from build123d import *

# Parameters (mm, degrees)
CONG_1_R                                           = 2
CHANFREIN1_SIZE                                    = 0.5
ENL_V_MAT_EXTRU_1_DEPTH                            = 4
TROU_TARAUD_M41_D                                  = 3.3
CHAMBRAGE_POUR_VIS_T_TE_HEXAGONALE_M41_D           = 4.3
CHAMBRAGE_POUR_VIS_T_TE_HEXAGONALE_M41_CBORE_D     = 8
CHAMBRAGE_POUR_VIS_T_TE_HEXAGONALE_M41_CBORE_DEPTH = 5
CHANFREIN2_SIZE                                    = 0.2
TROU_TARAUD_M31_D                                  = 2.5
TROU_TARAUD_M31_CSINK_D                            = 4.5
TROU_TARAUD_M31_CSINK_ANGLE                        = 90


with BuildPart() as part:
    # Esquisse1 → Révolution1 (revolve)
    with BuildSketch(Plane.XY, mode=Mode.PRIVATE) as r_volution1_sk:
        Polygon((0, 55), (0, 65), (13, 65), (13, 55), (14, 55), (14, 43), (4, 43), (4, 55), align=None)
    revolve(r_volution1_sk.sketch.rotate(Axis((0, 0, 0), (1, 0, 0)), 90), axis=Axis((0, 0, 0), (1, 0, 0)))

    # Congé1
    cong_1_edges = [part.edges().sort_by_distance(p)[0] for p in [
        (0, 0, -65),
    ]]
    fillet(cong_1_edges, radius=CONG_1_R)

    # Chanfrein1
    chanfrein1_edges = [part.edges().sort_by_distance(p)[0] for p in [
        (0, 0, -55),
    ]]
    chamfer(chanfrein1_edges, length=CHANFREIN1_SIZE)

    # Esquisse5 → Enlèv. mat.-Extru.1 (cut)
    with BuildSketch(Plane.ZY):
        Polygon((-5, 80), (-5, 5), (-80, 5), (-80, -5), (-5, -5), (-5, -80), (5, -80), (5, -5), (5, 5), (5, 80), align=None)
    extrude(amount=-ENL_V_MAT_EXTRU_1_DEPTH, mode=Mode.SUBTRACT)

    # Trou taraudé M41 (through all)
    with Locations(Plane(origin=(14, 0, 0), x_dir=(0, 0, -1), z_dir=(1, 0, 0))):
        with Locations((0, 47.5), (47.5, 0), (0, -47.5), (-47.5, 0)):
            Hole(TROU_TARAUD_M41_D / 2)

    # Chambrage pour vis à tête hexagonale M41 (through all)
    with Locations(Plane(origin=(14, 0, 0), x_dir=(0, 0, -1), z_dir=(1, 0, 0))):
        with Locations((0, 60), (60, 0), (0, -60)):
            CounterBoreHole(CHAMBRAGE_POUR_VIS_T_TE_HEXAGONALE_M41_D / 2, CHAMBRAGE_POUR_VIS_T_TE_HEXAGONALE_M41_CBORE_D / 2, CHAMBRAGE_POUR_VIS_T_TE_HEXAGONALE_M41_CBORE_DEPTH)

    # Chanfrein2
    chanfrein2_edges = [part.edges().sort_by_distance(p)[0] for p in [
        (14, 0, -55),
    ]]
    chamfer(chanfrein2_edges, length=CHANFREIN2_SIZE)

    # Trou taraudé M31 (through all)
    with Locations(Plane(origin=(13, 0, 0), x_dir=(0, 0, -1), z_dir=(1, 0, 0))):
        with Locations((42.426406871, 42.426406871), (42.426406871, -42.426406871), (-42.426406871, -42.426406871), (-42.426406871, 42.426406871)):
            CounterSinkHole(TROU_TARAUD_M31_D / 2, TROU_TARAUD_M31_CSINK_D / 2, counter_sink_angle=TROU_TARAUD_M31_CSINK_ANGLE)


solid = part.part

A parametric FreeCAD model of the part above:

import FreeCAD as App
import Part
import Sketcher

V = App.Vector


def edges_at(feature, points):
    """Names of the edges that pass closest to the given points."""
    edges = feature.Shape.Edges
    near = lambda p: min(range(len(edges)), key=lambda i: edges[i].distToShape(Part.Vertex(*p))[0])
    return sorted({f"Edge{near(p) + 1}" for p in points})


def add_polygon(sketch, points):
    """Adds a closed chain of lines whose ends are joined by coincident constraints."""
    first, n = sketch.GeometryCount, len(points)
    for a, b in zip(points, points[1:] + points[:1]):
        sketch.addGeometry(Part.LineSegment(App.Vector(*a, 0), App.Vector(*b, 0)), False)
    for i in range(n):
        sketch.addConstraint(Sketcher.Constraint("Coincident", first + i, 2, first + (i + 1) % n, 1))

doc = App.newDocument("Part")
body = doc.addObject("PartDesign::Body", "Body")

# Sketch on XY plane
sketch1 = doc.addObject("Sketcher::SketchObject", "Sketch")
body.addObject(sketch1)
sketch1.AttachmentSupport = (doc.XY_Plane, [""])
sketch1.MapMode = "FlatFace"
add_polygon(sketch1, [(0, 65), (0, 55), (4, 55), (4, 43), (14, 43), (14, 55), (13, 55), (13, 65)])  # lines 0-7
sketch1.addConstraint([
    Sketcher.Constraint("Vertical", 0),
    Sketcher.Constraint("Horizontal", 1),
    Sketcher.Constraint("Vertical", 2),
    Sketcher.Constraint("Horizontal", 3),
    Sketcher.Constraint("Vertical", 4),
    Sketcher.Constraint("Horizontal", 5),
    Sketcher.Constraint("Vertical", 6),
    Sketcher.Constraint("Horizontal", 7),
    Sketcher.Constraint("PointOnObject", 0, 2, -2),
    Sketcher.Constraint("Horizontal", 1, 2, 4, 2),
    Sketcher.Constraint("Equal", 3, 0),
    Sketcher.Constraint("DistanceX", 1, 1, 1, 2, 4.0),
    Sketcher.Constraint("DistanceX", 3, 1, 3, 2, 10.0),
    Sketcher.Constraint("DistanceX", 5, 2, 5, 1, 1.0),
    Sketcher.Constraint("DistanceY", 2, 2, 2, 1, 12.0),
    Sketcher.Constraint("DistanceY", -1, 1, 0, 2, 55.0),
])
revolution = doc.addObject("PartDesign::Revolution", "Revolution")
body.addObject(revolution)
revolution.Profile = sketch1
revolution.ReferenceAxis = (sketch1, ["H_Axis"])
revolution.Angle = 360
doc.recompute()

fillet = doc.addObject("PartDesign::Fillet", "Fillet")
body.addObject(fillet)
fillet.Base = (revolution, edges_at(revolution, [(0, 0, -65)]))
fillet.Radius = 2
doc.recompute()

chamfer = doc.addObject("PartDesign::Chamfer", "Chamfer")
body.addObject(chamfer)
chamfer.Base = (fillet, edges_at(fillet, [(0, 0, -55)]))
chamfer.Size = 0.5

# Sketch on YZ plane
sketch2 = doc.addObject("Sketcher::SketchObject", "Sketch001")
body.addObject(sketch2)
sketch2.AttachmentSupport = (doc.YZ_Plane, [""])
sketch2.MapMode = "FlatFace"
add_polygon(sketch2, [(80, -5), (5, -5), (5, -80), (-5, -80), (-5, -5), (-80, -5), (-80, 5), (80, 5)])  # lines 0-7
sketch2.addConstraint([
    Sketcher.Constraint("Horizontal", 0),
    Sketcher.Constraint("Vertical", 1),
    Sketcher.Constraint("Horizontal", 2),
    Sketcher.Constraint("Vertical", 3),
    Sketcher.Constraint("Horizontal", 4),
    Sketcher.Constraint("Vertical", 5),
    Sketcher.Constraint("Horizontal", 6),
    Sketcher.Constraint("Vertical", 7),
    Sketcher.Constraint("Symmetric", 4, 2, 6, 2, -1, 1),
    Sketcher.Constraint("Symmetric", 0, 2, 3, 2, -2),
    Sketcher.Constraint("Equal", 4, 1),
    Sketcher.Constraint("Equal", 2, 5),
    Sketcher.Constraint("DistanceX", 0, 2, 0, 1, 75.0),
    Sketcher.Constraint("DistanceX", 2, 2, 2, 1, 10.0),
])
pocket1 = doc.addObject("PartDesign::Pocket", "Pocket")
body.addObject(pocket1)
pocket1.Profile = sketch2
pocket1.Length = 4
pocket1.Reversed = True

# Sketch on YZ plane
sketch3 = doc.addObject("Sketcher::SketchObject", "Sketch002")
body.addObject(sketch3)
sketch3.AttachmentSupport = (doc.YZ_Plane, [""])
sketch3.MapMode = "FlatFace"
sketch3.AttachmentOffset = App.Placement(V(0, 0, 14), App.Rotation())
sketch3.addGeometry([
    Part.Circle(V(47.5, 0, 0), V(0, 0, 1), 1.6),
    Part.Circle(V(0, -47.5, 0), V(0, 0, 1), 1.6),
    Part.Circle(V(-47.5, 0, 0), V(0, 0, 1), 1.6),
    Part.Circle(V(0, 47.5, 0), V(0, 0, 1), 1.6),
], False)
sketch3.addConstraint([
    Sketcher.Constraint("Equal", 0, 1),
    Sketcher.Constraint("Equal", 1, 2),
    Sketcher.Constraint("Equal", 2, 3),
    Sketcher.Constraint("Symmetric", 0, 3, 2, 3, -1, 1),
    Sketcher.Constraint("Symmetric", 1, 3, 3, 3, -1, 1),
    Sketcher.Constraint("PointOnObject", 0, 3, -1),
    Sketcher.Constraint("PointOnObject", 1, 3, -2),
    Sketcher.Constraint("Diameter", 0, 3.3),
    Sketcher.Constraint("DistanceX", 2, 3, 0, 3, 95.0),
    Sketcher.Constraint("DistanceY", 1, 3, 3, 3, 95.0),
])
doc.recompute()
hole = doc.addObject("PartDesign::Hole", "Hole")
body.addObject(hole)
hole.Profile = sketch3
hole.ThreadType = "None"
hole.Diameter = 3.3
hole.DepthType = "ThroughAll"

# Sketch on YZ plane
sketch4 = doc.addObject("Sketcher::SketchObject", "Sketch003")
body.addObject(sketch4)
sketch4.AttachmentSupport = (doc.YZ_Plane, [""])
sketch4.MapMode = "FlatFace"
sketch4.AttachmentOffset = App.Placement(V(0, 0, 14), App.Rotation())
sketch4.addGeometry([
    Part.Circle(V(60, 0, 0), V(0, 0, 1), 2.1),
    Part.Circle(V(0, -60, 0), V(0, 0, 1), 2.1),
    Part.Circle(V(-60, 0, 0), V(0, 0, 1), 2.1),
], False)
sketch4.addConstraint([
    Sketcher.Constraint("Equal", 0, 1),
    Sketcher.Constraint("Equal", 1, 2),
    Sketcher.Constraint("Symmetric", 0, 3, 2, 3, -1, 1),
    Sketcher.Constraint("PointOnObject", 0, 3, -1),
    Sketcher.Constraint("PointOnObject", 1, 3, -2),
    Sketcher.Constraint("Diameter", 0, 4.3),
    Sketcher.Constraint("DistanceX", -1, 1, 0, 3, 60.0),
    Sketcher.Constraint("DistanceY", 1, 3, -1, 1, 60.0),
])
doc.recompute()
hole2 = doc.addObject("PartDesign::Hole", "Hole001")
body.addObject(hole2)
hole2.Profile = sketch4
hole2.ThreadType = "None"
hole2.Diameter = 4.3
hole2.DepthType = "ThroughAll"
hole2.HoleCutType = "Counterbore"
hole2.HoleCutDiameter = 8
hole2.HoleCutDepth = 5
doc.recompute()

chamfer2 = doc.addObject("PartDesign::Chamfer", "Chamfer001")
body.addObject(chamfer2)
chamfer2.Base = (hole2, edges_at(hole2, [(14, 0, -55)]))
chamfer2.Size = 0.2

# Sketch on YZ plane
sketch5 = doc.addObject("Sketcher::SketchObject", "Sketch004")
body.addObject(sketch5)
sketch5.AttachmentSupport = (doc.YZ_Plane, [""])
sketch5.MapMode = "FlatFace"
sketch5.AttachmentOffset = App.Placement(V(0, 0, 13), App.Rotation())
sketch5.addGeometry([
    Part.Circle(V(42.4, -42.4, 0), V(0, 0, 1), 1.2),
    Part.Circle(V(-42.4, -42.4, 0), V(0, 0, 1), 1.2),
    Part.Circle(V(-42.4, 42.4, 0), V(0, 0, 1), 1.2),
    Part.Circle(V(42.4, 42.4, 0), V(0, 0, 1), 1.2),
], False)
sketch5.addConstraint([
    Sketcher.Constraint("Equal", 0, 1),
    Sketcher.Constraint("Equal", 1, 2),
    Sketcher.Constraint("Equal", 2, 3),
    Sketcher.Constraint("Symmetric", 0, 3, 2, 3, -1, 1),
    Sketcher.Constraint("Symmetric", 1, 3, 3, 3, -1, 1),
    Sketcher.Constraint("Symmetric", 0, 3, 1, 3, -2),
    Sketcher.Constraint("Diameter", 0, 2.5),
    Sketcher.Constraint("DistanceX", -1, 1, 0, 3, 42.426407),
    Sketcher.Constraint("DistanceY", 0, 3, -1, 1, 42.426407),
])
doc.recompute()
hole3 = doc.addObject("PartDesign::Hole", "Hole002")
body.addObject(hole3)
hole3.Profile = sketch5
hole3.ThreadType = "None"
hole3.Diameter = 2.5
hole3.DepthType = "ThroughAll"
hole3.HoleCutType = "Countersink"
hole3.HoleCutDiameter = 4.5
hole3.HoleCutCountersinkAngle = 90

doc.recompute()
